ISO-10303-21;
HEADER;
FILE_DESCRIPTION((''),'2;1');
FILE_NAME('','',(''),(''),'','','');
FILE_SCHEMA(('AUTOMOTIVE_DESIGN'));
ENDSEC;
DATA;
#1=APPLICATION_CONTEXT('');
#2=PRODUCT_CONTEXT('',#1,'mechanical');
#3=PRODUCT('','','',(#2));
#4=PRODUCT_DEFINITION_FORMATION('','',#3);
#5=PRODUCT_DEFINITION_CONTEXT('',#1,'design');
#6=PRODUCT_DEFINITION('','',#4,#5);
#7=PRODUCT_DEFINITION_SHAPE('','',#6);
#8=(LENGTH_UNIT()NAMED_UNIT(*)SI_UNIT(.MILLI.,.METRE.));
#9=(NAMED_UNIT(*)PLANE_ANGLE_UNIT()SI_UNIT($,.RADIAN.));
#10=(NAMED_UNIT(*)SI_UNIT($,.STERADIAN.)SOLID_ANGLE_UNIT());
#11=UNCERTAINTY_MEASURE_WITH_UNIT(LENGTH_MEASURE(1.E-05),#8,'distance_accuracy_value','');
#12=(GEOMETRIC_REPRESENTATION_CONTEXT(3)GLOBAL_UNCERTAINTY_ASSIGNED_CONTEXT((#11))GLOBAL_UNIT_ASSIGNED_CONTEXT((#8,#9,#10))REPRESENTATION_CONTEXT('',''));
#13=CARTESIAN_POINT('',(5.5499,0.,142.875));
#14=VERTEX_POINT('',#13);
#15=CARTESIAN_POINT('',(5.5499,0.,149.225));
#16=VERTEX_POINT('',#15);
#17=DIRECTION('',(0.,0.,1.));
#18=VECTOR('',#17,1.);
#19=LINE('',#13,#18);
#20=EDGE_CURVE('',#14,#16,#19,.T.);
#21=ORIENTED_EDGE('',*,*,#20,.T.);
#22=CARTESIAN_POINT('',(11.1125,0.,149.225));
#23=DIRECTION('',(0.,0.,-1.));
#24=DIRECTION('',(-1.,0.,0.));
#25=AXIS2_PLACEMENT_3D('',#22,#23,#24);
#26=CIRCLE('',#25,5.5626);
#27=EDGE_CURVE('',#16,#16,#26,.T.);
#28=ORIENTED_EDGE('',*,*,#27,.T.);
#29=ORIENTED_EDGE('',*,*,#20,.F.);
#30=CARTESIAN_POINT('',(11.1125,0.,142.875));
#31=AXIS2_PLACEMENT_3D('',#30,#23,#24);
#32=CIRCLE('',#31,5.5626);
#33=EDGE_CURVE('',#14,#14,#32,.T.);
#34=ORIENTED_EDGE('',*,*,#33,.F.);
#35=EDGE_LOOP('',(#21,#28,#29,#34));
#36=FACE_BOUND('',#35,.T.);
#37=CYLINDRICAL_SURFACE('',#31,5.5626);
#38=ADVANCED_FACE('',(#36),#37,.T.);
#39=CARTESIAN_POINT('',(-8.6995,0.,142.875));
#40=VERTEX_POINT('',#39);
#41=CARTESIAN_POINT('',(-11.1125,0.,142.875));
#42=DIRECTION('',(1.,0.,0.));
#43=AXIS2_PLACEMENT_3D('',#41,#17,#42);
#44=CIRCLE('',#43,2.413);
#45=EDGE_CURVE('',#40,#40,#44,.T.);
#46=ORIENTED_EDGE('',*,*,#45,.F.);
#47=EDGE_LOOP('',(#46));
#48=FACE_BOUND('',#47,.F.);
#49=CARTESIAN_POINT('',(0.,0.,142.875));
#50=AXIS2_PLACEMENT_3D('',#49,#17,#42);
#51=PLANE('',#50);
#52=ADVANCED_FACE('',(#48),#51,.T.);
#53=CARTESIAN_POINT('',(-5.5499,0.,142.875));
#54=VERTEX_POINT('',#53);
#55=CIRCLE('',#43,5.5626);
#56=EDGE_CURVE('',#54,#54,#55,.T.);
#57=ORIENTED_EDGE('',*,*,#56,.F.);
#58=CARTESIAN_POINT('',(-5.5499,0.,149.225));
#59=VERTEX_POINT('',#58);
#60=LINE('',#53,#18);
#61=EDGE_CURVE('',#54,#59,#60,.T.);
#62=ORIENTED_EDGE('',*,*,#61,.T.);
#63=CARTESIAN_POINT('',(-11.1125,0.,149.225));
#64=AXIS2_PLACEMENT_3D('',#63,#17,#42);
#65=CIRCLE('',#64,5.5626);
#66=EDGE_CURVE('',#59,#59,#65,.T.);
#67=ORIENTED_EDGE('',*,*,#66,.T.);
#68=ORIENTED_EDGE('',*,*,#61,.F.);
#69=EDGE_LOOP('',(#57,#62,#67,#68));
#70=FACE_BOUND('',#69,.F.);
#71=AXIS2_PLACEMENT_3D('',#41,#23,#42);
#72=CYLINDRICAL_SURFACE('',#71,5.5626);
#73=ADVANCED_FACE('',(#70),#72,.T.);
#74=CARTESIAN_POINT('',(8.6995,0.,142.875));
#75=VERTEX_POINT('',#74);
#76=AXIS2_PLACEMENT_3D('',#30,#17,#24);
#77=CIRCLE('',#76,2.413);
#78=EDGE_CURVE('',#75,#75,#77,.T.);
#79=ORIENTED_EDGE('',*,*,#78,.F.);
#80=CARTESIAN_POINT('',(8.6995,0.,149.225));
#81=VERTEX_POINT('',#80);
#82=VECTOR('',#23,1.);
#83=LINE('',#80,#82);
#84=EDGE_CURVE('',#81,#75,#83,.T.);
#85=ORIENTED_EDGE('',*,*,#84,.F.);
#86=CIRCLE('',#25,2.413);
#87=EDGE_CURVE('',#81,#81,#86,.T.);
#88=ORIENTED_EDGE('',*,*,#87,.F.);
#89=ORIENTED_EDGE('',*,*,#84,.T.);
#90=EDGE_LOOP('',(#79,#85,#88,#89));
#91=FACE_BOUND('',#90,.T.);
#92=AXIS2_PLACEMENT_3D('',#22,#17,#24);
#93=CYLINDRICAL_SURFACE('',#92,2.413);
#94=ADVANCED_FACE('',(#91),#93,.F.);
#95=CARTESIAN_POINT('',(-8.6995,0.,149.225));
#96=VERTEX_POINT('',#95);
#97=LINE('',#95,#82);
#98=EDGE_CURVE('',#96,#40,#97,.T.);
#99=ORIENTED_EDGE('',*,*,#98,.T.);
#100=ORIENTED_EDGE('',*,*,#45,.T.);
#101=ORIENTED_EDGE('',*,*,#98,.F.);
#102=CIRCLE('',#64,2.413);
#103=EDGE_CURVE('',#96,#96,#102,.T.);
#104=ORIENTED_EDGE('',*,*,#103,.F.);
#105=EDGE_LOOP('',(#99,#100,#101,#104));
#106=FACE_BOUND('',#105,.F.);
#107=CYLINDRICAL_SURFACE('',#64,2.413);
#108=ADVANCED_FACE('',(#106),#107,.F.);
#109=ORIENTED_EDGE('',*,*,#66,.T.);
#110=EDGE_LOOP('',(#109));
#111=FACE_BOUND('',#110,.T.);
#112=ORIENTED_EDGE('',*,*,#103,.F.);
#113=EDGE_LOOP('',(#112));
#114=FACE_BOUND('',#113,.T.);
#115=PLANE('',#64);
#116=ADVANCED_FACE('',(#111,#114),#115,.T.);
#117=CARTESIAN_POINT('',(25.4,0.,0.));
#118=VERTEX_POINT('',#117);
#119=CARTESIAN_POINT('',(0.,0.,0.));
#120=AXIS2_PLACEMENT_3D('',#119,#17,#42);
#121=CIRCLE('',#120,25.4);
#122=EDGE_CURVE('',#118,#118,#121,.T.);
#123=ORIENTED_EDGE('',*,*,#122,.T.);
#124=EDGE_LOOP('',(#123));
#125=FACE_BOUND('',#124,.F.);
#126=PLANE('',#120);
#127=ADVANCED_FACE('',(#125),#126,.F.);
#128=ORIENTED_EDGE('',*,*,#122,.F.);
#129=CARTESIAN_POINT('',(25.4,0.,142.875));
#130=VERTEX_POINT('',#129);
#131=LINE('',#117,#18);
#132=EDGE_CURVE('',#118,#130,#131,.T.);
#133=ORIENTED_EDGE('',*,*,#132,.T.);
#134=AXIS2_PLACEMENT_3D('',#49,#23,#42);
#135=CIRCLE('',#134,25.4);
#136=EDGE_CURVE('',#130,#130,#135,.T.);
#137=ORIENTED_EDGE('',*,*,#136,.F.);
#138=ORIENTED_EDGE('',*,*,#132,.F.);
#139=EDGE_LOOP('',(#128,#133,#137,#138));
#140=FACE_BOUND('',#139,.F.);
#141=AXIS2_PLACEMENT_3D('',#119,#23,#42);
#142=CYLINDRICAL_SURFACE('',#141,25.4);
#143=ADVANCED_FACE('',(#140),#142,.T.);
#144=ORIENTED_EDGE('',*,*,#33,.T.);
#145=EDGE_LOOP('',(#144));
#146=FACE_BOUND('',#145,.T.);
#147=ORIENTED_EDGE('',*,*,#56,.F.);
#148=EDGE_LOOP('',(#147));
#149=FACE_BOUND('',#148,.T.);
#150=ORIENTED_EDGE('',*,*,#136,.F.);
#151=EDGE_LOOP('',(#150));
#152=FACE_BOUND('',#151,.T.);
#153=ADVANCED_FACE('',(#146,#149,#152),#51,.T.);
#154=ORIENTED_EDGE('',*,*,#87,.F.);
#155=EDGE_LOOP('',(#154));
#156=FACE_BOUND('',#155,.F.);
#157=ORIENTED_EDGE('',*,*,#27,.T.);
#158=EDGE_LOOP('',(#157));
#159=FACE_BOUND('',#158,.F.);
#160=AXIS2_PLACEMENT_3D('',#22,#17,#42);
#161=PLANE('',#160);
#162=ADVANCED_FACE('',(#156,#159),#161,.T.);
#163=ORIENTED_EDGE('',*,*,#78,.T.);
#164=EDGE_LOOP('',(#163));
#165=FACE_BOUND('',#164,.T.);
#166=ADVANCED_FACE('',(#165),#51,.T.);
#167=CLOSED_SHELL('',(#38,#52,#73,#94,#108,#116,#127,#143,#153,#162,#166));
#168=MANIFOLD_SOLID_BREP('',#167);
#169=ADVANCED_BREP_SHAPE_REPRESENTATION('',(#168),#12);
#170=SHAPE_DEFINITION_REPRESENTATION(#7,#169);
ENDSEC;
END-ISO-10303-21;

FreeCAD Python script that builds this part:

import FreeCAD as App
import Part
import Sketcher

V = App.Vector
Q = App.Units.Quantity

doc = App.newDocument("Part")
body = doc.addObject("PartDesign::Body", "Body")

sketch1 = body.newObject("Sketcher::SketchObject", "Sketch")
sketch1.AttachmentSupport = (doc.getObject("XY_Plane"), [""])
sketch1.MapMode = "FlatFace"
sketch1.addGeometry(Part.Circle(V(0, 0, 0), V(0, 0, 1), 25), False)
sketch1.addConstraint([
    Sketcher.Constraint("Coincident", 0, 3, -1, 1),
    Sketcher.Constraint("Diameter", 0, Q("2 in")),
])
pad1 = body.newObject("PartDesign::Pad", "Pad")
pad1.Profile = sketch1
pad1.Length = Q("5.625 in")

sketch2 = body.newObject("Sketcher::SketchObject", "Sketch001")
sketch2.AttachmentSupport = (doc.getObject("XY_Plane"), [""])
sketch2.MapMode = "FlatFace"
sketch2.AttachmentOffset = App.Placement(V(0, 0, 5.625 * 25.4), App.Rotation())
sketch2.addGeometry(Part.Circle(V(-11, 0, 0), V(0, 0, 1), 6), False)
sketch2.addConstraint([
    Sketcher.Constraint("PointOnObject", 0, 3, -1),
    Sketcher.Constraint("Diameter", 0, Q("0.438 in")),
    Sketcher.Constraint("DistanceX", 0, 3, -1, 1, Q("0.4375 in")),
])
pad2 = body.newObject("PartDesign::Pad", "Pad001")
pad2.Profile = sketch2
pad2.Length = Q("0.25 in")

sketch3 = body.newObject("Sketcher::SketchObject", "Sketch002")
sketch3.AttachmentSupport = (doc.getObject("XY_Plane"), [""])
sketch3.MapMode = "FlatFace"
sketch3.AttachmentOffset = App.Placement(V(0, 0, 5.875 * 25.4), App.Rotation())
sketch3.addGeometry(Part.Circle(V(-11.1, 0, 0), V(0, 0, 1), 2.4), False)
sketch3.addConstraint([
    Sketcher.Constraint("PointOnObject", 0, 3, -1),
    Sketcher.Constraint("Diameter", 0, Q("0.19 in")),
    Sketcher.Constraint("DistanceX", 0, 3, -1, 1, Q("0.4375 in")),
])
pocket1 = body.newObject("PartDesign::Pocket", "Pocket")
pocket1.Profile = sketch3
pocket1.Length = Q("0.375 in")
body2 = doc.addObject("PartDesign::Body", "Body001")
doc.recompute()

body2.BaseFeature = body
doc.recompute()

mirroring = doc.addObject("Part::Mirroring", "Mirroring")
mirroring.Source = body
mirroring.Base = V(0, 0, 0)
mirroring.Normal = V(1, 0, 0)
body3 = doc.addObject("PartDesign::Body", "Body002")
body3.BaseFeature = mirroring
boolean = body2.newObject("PartDesign::Boolean", "Boolean")
boolean.Type = "Fuse"
boolean.addObjects([body3])
doc.recompute()
mirroring.Visibility = False

doc.recompute()
